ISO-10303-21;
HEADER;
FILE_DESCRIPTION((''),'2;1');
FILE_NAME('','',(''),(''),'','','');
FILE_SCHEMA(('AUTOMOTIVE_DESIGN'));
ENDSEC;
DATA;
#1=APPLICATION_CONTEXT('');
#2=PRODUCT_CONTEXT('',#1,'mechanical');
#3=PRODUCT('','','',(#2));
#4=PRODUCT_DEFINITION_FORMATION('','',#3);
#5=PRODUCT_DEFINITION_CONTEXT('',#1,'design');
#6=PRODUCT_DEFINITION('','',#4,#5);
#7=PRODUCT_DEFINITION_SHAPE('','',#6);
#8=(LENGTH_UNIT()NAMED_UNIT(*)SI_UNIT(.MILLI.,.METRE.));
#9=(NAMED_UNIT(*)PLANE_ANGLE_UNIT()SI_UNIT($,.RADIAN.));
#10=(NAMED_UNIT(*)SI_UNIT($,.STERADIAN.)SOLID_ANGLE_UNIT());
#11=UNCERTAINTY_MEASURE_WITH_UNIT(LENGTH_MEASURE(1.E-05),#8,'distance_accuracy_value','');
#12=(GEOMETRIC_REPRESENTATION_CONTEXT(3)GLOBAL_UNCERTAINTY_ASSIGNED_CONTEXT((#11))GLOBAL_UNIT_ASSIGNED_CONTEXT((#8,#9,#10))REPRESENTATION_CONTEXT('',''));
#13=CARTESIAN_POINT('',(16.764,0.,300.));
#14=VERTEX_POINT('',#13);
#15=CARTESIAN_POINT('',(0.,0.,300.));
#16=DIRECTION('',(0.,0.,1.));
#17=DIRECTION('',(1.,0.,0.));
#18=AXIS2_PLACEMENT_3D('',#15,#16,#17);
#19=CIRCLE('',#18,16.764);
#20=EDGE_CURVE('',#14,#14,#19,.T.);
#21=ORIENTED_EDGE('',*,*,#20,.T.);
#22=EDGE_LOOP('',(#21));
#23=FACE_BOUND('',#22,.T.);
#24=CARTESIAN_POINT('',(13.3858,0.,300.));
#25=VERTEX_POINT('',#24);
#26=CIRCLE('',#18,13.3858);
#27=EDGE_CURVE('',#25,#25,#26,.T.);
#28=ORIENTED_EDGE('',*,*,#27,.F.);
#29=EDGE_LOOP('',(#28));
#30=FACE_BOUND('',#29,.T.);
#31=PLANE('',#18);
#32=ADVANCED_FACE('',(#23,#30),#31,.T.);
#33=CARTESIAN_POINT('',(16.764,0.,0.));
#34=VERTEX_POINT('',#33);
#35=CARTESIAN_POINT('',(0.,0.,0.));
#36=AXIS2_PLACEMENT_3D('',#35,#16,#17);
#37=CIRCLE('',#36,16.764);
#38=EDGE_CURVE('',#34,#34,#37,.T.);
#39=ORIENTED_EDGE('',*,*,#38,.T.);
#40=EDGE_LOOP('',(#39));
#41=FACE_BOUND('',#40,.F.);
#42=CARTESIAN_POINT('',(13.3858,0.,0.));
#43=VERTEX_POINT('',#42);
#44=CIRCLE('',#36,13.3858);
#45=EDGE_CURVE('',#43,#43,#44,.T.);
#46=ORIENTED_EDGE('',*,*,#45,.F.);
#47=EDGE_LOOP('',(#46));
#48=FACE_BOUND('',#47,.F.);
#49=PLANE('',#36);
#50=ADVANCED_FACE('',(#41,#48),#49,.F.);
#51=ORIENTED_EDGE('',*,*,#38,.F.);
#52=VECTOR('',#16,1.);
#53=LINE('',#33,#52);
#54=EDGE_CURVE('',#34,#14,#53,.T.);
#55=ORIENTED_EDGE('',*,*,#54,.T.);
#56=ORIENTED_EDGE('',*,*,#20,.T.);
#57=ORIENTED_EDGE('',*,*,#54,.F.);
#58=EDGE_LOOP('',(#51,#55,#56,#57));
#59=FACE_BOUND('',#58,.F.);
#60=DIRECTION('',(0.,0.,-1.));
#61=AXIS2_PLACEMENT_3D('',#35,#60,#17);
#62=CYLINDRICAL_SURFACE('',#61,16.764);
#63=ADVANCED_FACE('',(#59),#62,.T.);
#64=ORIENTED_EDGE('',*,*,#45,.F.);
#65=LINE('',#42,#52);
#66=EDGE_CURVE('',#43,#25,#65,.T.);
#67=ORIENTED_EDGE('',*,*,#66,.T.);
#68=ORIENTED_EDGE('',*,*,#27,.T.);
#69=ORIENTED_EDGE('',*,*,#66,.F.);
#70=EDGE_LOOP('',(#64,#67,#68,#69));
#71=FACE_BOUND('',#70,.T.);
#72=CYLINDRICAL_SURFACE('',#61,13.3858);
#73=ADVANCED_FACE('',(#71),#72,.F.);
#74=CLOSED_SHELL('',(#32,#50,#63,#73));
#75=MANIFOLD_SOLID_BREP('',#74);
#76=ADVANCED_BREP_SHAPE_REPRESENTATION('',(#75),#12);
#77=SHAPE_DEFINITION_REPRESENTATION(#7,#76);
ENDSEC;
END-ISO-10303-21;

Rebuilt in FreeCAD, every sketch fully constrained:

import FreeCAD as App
import Part
import Sketcher
from FreeCAD import Vector
Q = App.Units.Quantity

doc = App.newDocument("Part")
body = doc.addObject("PartDesign::Body", "Body")

# Sketch on XY plane
sketch1 = body.newObject("Sketcher::SketchObject", "Sketch")
sketch1.AttachmentSupport = (doc.getObject("XY_Plane"), [""])
sketch1.MapMode = "FlatFace"
sketch1.addGeometry([
    Part.Circle(Vector(0, 0, 0), Vector(0, 0, 1), 17),
    Part.Circle(Vector(0, 0, 0), Vector(0, 0, 1), 13),
], False)
sketch1.addConstraint([
    Sketcher.Constraint("Coincident", 0, 3, -1, 1),
    Sketcher.Constraint("Coincident", 1, 3, -1, 1),
    Sketcher.Constraint("Diameter", 0, Q("1.32 in")),
    Sketcher.Constraint("Diameter", 1, Q("1.054 in")),
])
pad1 = body.newObject("PartDesign::Pad", "Pad")
pad1.Profile = sketch1
pad1.Length = 300

doc.recompute()
